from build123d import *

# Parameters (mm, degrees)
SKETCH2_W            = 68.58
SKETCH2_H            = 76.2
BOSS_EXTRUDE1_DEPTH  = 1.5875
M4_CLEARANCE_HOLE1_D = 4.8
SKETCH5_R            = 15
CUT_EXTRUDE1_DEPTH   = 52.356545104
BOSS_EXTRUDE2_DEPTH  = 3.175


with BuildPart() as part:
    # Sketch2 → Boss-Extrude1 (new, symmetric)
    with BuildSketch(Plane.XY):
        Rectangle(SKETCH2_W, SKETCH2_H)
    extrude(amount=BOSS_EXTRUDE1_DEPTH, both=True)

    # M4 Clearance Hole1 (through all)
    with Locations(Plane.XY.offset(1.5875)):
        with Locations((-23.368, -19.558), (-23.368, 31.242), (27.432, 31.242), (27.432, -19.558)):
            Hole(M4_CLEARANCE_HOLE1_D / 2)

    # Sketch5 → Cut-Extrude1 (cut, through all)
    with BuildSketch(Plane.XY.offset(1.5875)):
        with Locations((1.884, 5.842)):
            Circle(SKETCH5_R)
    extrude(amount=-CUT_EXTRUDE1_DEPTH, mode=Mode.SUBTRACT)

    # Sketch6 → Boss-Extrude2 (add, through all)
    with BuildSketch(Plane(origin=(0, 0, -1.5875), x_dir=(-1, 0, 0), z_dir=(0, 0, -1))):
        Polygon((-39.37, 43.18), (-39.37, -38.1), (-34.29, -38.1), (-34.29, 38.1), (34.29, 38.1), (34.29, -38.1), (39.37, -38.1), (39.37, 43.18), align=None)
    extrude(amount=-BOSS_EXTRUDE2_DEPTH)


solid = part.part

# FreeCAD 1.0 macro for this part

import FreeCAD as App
import Part
import Sketcher

V = App.Vector
Q = App.Units.Quantity

doc = App.newDocument("Part")
body = doc.addObject("PartDesign::Body", "Body")

# Sketch on XY plane
sketch1 = body.newObject("Sketcher::SketchObject", "Sketch")
sketch1.AttachmentSupport = (doc.getObject("XY_Plane"), [""])
sketch1.MapMode = "FlatFace"
sketch1.addGeometry(Part.LineSegment(V(-34, 38, 0), V(-34, -38, 0)), False)
sketch1.addGeometry(Part.LineSegment(V(-34, -38, 0), V(34, -38, 0)), False)
sketch1.addGeometry(Part.LineSegment(V(34, -38, 0), V(34, 38, 0)), False)
sketch1.addGeometry(Part.LineSegment(V(34, 38, 0), V(-34, 38, 0)), False)
sketch1.addConstraint(Sketcher.Constraint("Coincident", 0, 2, 1, 1))
sketch1.addConstraint(Sketcher.Constraint("Coincident", 1, 2, 2, 1))
sketch1.addConstraint(Sketcher.Constraint("Coincident", 2, 2, 3, 1))
sketch1.addConstraint(Sketcher.Constraint("Coincident", 3, 2, 0, 1))
sketch1.addConstraint(Sketcher.Constraint("Vertical", 0))
sketch1.addConstraint(Sketcher.Constraint("Horizontal", 1))
sketch1.addConstraint(Sketcher.Constraint("Vertical", 2))
sketch1.addConstraint(Sketcher.Constraint("Horizontal", 3))
sketch1.addConstraint(Sketcher.Constraint("Symmetric", 0, 2, 2, 2, -1, 1))
sketch1.addConstraint(Sketcher.Constraint("DistanceY", 0, 2, 0, 1, Q("3 in")))
sketch1.addConstraint(Sketcher.Constraint("DistanceX", 1, 1, 1, 2, Q("2.7 in")))
pad1 = body.newObject("PartDesign::Pad", "Pad")
pad1.Profile = sketch1
pad1.Length = Q("0.125 in")
pad1.Midplane = True

# Sketch on XY plane
sketch2 = body.newObject("Sketcher::SketchObject", "Sketch001")
sketch2.AttachmentSupport = (doc.getObject("XY_Plane"), [""])
sketch2.MapMode = "FlatFace"
sketch2.AttachmentOffset = App.Placement(V(0, 0, 0.0625 * 25.4), App.Rotation())
sketch2.addGeometry(Part.Circle(V(-23.4, -19.6, 0), V(0, 0, 1), 2.4), False)
sketch2.addGeometry(Part.Circle(V(-23.4, 31.2, 0), V(0, 0, 1), 2.4), False)
sketch2.addGeometry(Part.Circle(V(27.4, 31.2, 0), V(0, 0, 1), 2.4), False)
sketch2.addGeometry(Part.Circle(V(27.4, -19.6, 0), V(0, 0, 1), 2.4), False)
sketch2.addConstraint(Sketcher.Constraint("Equal", 0, 1))
sketch2.addConstraint(Sketcher.Constraint("Equal", 1, 2))
sketch2.addConstraint(Sketcher.Constraint("Equal", 2, 3))
sketch2.addConstraint(Sketcher.Constraint("Horizontal", 1, 3, 2, 3))
sketch2.addConstraint(Sketcher.Constraint("Horizontal", 0, 3, 3, 3))
sketch2.addConstraint(Sketcher.Constraint("Vertical", 0, 3, 1, 3))
sketch2.addConstraint(Sketcher.Constraint("Vertical", 2, 3, 3, 3))
sketch2.addConstraint(Sketcher.Constraint("DistanceY", 0, 3, 1, 3, Q("2 in")))
sketch2.addConstraint(Sketcher.Constraint("DistanceX", 1, 3, 2, 3, Q("2 in")))
sketch2.addConstraint(Sketcher.Constraint("Diameter", 0, Q("4.8 mm")))
sketch2.addConstraint(Sketcher.Constraint("DistanceX", 0, 3, -1, 1, Q("0.92 in")))
sketch2.addConstraint(Sketcher.Constraint("DistanceY", 0, 3, -1, 1, Q("0.77 in")))
doc.recompute()
hole = body.newObject("PartDesign::Hole", "Hole")
hole.Profile = sketch2
hole.ThreadType = "None"
hole.Diameter = 4.8
hole.DepthType = "ThroughAll"

# Sketch on XY plane
sketch3 = body.newObject("Sketcher::SketchObject", "Sketch002")
sketch3.AttachmentSupport = (doc.getObject("XY_Plane"), [""])
sketch3.MapMode = "FlatFace"
sketch3.AttachmentOffset = App.Placement(V(0, 0, 0.0625 * 25.4), App.Rotation())
sketch3.addGeometry(Part.Circle(V(2, 6, 0), V(0, 0, 1), 15), False)
sketch3.addConstraint(Sketcher.Constraint("Diameter", 0, Q("30 mm")))
sketch3.addConstraint(Sketcher.Constraint("DistanceY", -1, 1, 0, 3, Q("0.23 in")))
sketch3.addConstraint(Sketcher.Constraint("DistanceX", -1, 1, 0, 3, Q("1.884 mm")))
pocket1 = body.newObject("PartDesign::Pocket", "Pocket")
pocket1.Profile = sketch3
pocket1.Type = "ThroughAll"

# Sketch on XY plane
sketch4 = body.newObject("Sketcher::SketchObject", "Sketch003")
sketch4.AttachmentSupport = (doc.getObject("XY_Plane"), [""])
sketch4.MapMode = "FlatFace"
sketch4.AttachmentOffset = App.Placement(V(0, 0, -0.0625 * 25.4), App.Rotation())
sketch4.addGeometry(Part.LineSegment(V(39, 43, 0), V(39, -38, 0)), False)
sketch4.addGeometry(Part.LineSegment(V(39, -38, 0), V(34, -38, 0)), False)
sketch4.addGeometry(Part.LineSegment(V(34, -38, 0), V(34, 38, 0)), False)
sketch4.addGeometry(Part.LineSegment(V(34, 38, 0), V(-34, 38, 0)), False)
sketch4.addGeometry(Part.LineSegment(V(-34, 38, 0), V(-34, -38, 0)), False)
sketch4.addGeometry(Part.LineSegment(V(-34, -38, 0), V(-39, -38, 0)), False)
sketch4.addGeometry(Part.LineSegment(V(-39, -38, 0), V(-39, 43, 0)), False)
sketch4.addGeometry(Part.LineSegment(V(-39, 43, 0), V(39, 43, 0)), False)
sketch4.addConstraint(Sketcher.Constraint("Coincident", 0, 2, 1, 1))
sketch4.addConstraint(Sketcher.Constraint("Coincident", 1, 2, 2, 1))
sketch4.addConstraint(Sketcher.Constraint("Coincident", 2, 2, 3, 1))
sketch4.addConstraint(Sketcher.Constraint("Coincident", 3, 2, 4, 1))
sketch4.addConstraint(Sketcher.Constraint("Coincident", 4, 2, 5, 1))
sketch4.addConstraint(Sketcher.Constraint("Coincident", 5, 2, 6, 1))
sketch4.addConstraint(Sketcher.Constraint("Coincident", 6, 2, 7, 1))
sketch4.addConstraint(Sketcher.Constraint("Coincident", 7, 2, 0, 1))
sketch4.addConstraint(Sketcher.Constraint("Vertical", 0))
sketch4.addConstraint(Sketcher.Constraint("Horizontal", 1))
sketch4.addConstraint(Sketcher.Constraint("Vertical", 2))
sketch4.addConstraint(Sketcher.Constraint("Horizontal", 3))
sketch4.addConstraint(Sketcher.Constraint("Vertical", 4))
sketch4.addConstraint(Sketcher.Constraint("Horizontal", 5))
sketch4.addConstraint(Sketcher.Constraint("Vertical", 6))
sketch4.addConstraint(Sketcher.Constraint("Horizontal", 7))
sketch4.addConstraint(Sketcher.Constraint("Symmetric", 1, 2, 3, 2, -1, 1))
sketch4.addConstraint(Sketcher.Constraint("Symmetric", 0, 2, 5, 2, -2))
sketch4.addConstraint(Sketcher.Constraint("DistanceY", 2, 1, 2, 2, Q("3 in")))
sketch4.addConstraint(Sketcher.Constraint("DistanceX", 1, 2, 1, 1, Q("0.2 in")))
sketch4.addConstraint(Sketcher.Constraint("DistanceX", 3, 2, 3, 1, Q("2.7 in")))
sketch4.addConstraint(Sketcher.Constraint("DistanceY", 0, 2, 0, 1, Q("3.2 in")))
pad2 = body.newObject("PartDesign::Pad", "Pad001")
pad2.Profile = sketch4
pad2.Length = Q("0.125 in")

doc.recompute()
